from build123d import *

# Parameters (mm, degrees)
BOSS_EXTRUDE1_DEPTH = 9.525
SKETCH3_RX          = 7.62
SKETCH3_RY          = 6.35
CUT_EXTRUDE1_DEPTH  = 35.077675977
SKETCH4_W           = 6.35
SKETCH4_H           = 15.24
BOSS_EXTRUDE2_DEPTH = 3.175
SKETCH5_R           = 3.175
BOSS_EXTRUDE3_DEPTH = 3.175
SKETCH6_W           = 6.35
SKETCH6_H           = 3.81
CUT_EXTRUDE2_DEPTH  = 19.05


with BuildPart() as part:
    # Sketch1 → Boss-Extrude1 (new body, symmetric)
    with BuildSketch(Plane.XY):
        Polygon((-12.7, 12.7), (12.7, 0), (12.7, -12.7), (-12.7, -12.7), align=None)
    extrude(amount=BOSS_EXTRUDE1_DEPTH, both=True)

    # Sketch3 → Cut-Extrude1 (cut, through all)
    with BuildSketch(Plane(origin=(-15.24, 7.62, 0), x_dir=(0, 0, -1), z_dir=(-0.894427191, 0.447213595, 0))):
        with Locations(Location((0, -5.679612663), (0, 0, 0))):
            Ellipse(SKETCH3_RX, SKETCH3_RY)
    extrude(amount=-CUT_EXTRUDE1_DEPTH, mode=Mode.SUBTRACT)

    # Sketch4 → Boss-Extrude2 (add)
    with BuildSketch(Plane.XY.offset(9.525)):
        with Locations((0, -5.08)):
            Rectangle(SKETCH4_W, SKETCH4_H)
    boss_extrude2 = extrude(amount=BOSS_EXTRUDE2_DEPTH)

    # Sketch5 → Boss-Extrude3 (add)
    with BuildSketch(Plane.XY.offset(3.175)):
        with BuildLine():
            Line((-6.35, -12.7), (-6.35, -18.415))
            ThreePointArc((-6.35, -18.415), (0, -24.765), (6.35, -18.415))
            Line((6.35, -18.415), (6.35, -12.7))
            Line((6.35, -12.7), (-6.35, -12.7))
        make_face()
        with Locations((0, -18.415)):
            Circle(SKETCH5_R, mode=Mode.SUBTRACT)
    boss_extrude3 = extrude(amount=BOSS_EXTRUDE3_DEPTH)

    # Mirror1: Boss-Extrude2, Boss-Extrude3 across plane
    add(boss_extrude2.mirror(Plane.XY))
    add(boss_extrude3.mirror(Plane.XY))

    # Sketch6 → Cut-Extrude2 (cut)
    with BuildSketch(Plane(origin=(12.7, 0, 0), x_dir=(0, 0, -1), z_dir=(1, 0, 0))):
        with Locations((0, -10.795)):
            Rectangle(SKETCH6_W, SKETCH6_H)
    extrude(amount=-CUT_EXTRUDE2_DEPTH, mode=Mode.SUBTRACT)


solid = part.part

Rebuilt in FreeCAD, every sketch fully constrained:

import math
import FreeCAD as App
import Part
import Sketcher
from FreeCAD import Vector
Q = App.Units.Quantity


def add_polygon(sketch, points):
    """Adds a closed chain of lines whose ends are joined by coincident constraints."""
    first, n = sketch.GeometryCount, len(points)
    for a, b in zip(points, points[1:] + points[:1]):
        sketch.addGeometry(Part.LineSegment(App.Vector(*a, 0), App.Vector(*b, 0)), False)
    for i in range(n):
        sketch.addConstraint(Sketcher.Constraint("Coincident", first + i, 2, first + (i + 1) % n, 1))

doc = App.newDocument("Part")
body = doc.addObject("PartDesign::Body", "Body")

# Sketch on XY plane
sketch1 = body.newObject("Sketcher::SketchObject", "Sketch")
sketch1.AttachmentSupport = (doc.getObject("XY_Plane"), [""])
sketch1.MapMode = "FlatFace"
add_polygon(sketch1, [(12.7, 0), (-12.7, 12.7), (-12.7, -12.7), (12.7, -12.7)])  # lines 0-3
sketch1.addConstraint(Sketcher.Constraint("Vertical", 1))
sketch1.addConstraint(Sketcher.Constraint("Horizontal", 2))
sketch1.addConstraint(Sketcher.Constraint("Vertical", 3))
sketch1.addConstraint(Sketcher.Constraint("Symmetric", 0, 2, 2, 2, -1, 1))
sketch1.addConstraint(Sketcher.Constraint("PointOnObject", 3, 2, -1))
sketch1.addConstraint(Sketcher.Constraint("Equal", 2, 1))
sketch1.addConstraint(Sketcher.Constraint("DistanceX", 2, 1, 2, 2, Q("1 in")))
pad1 = body.newObject("PartDesign::Pad", "Pad")
pad1.Profile = sketch1
pad1.Length = Q("0.75 in")
pad1.Midplane = True

# Sketch on an angled plane
sketch2 = body.newObject("Sketcher::SketchObject", "Sketch001")
sketch2.Placement = App.Placement(Vector(-15.24, 7.62, 0), App.Rotation(Vector(0, 0, -1), Vector(-0.447213595, -0.894427191, 0), Vector(-0.894427191, 0.447213595, 0), "ZXY"))
sketch2.addGeometry(Part.Ellipse(Vector(7.62, -5.679613, 0), Vector(0, 0.670387, 0), Vector(0, -5.679613, 0)), False)
sketch2.addConstraint(Sketcher.Constraint("Block", 0))
pocket1 = body.newObject("PartDesign::Pocket", "Pocket")
pocket1.Profile = sketch2
pocket1.Type = "ThroughAll"

# Sketch on XY plane
sketch3 = body.newObject("Sketcher::SketchObject", "Sketch002")
sketch3.AttachmentSupport = (doc.getObject("XY_Plane"), [""])
sketch3.MapMode = "FlatFace"
sketch3.AttachmentOffset = App.Placement(Vector(0, 0, 0.375 * 25.4), App.Rotation())
add_polygon(sketch3, [(-3.175, 2.54), (-3.175, -12.7), (3.175, -12.7), (3.175, 2.54)])  # lines 0-3
sketch3.addConstraint(Sketcher.Constraint("Vertical", 0))
sketch3.addConstraint(Sketcher.Constraint("Horizontal", 1))
sketch3.addConstraint(Sketcher.Constraint("Vertical", 2))
sketch3.addConstraint(Sketcher.Constraint("Horizontal", 3))
sketch3.addConstraint(Sketcher.Constraint("DistanceY", 0, 2, 0, 1, Q("0.6 in")))
sketch3.addConstraint(Sketcher.Constraint("DistanceX", 1, 1, 1, 2, Q("0.25 in")))
sketch3.addConstraint(Sketcher.Constraint("DistanceY", 0, 2, -1, 1, Q("0.5 in")))
sketch3.addConstraint(Sketcher.Constraint("DistanceX", 0, 2, -1, 1, Q("0.125 in")))
pad2 = body.newObject("PartDesign::Pad", "Pad001")
pad2.Profile = sketch3
pad2.Length = Q("0.125 in")

# Sketch on XY plane
sketch4 = body.newObject("Sketcher::SketchObject", "Sketch003")
sketch4.AttachmentSupport = (doc.getObject("XY_Plane"), [""])
sketch4.MapMode = "FlatFace"
sketch4.AttachmentOffset = App.Placement(Vector(0, 0, 0.125 * 25.4), App.Rotation())
sketch4.addGeometry(Part.LineSegment(Vector(-6.35, -12.7, 0), Vector(-6.35, -18.415, 0)), False)
sketch4.addGeometry(Part.ArcOfCircle(Part.Circle(Vector(0, -18.415, 0), Vector(0, 0, 1), 6.35), math.radians(180), math.radians(360)), False)
sketch4.addGeometry(Part.LineSegment(Vector(6.35, -18.415, 0), Vector(6.35, -12.7, 0)), False)
sketch4.addGeometry(Part.LineSegment(Vector(6.35, -12.7, 0), Vector(-6.35, -12.7, 0)), False)
sketch4.addGeometry(Part.Circle(Vector(0, -18.415, 0), Vector(0, 0, 1), 3.175), False)
sketch4.addConstraint(Sketcher.Constraint("Tangent", 0, 2, 1, 1))
sketch4.addConstraint(Sketcher.Constraint("Tangent", 1, 2, 2, 1))
sketch4.addConstraint(Sketcher.Constraint("Coincident", 2, 2, 3, 1))
sketch4.addConstraint(Sketcher.Constraint("Coincident", 3, 2, 0, 1))
sketch4.addConstraint(Sketcher.Constraint("Vertical", 0))
sketch4.addConstraint(Sketcher.Constraint("Vertical", 2))
sketch4.addConstraint(Sketcher.Constraint("Horizontal", 3))
sketch4.addConstraint(Sketcher.Constraint("Coincident", 4, 3, 1, 3))
sketch4.addConstraint(Sketcher.Constraint("PointOnObject", 1, 3, -2))
sketch4.addConstraint(Sketcher.Constraint("Diameter", 4, Q("0.25 in")))
sketch4.addConstraint(Sketcher.Constraint("Radius", 1, Q("0.25 in")))
sketch4.addConstraint(Sketcher.Constraint("DistanceY", 2, 2, -1, 1, Q("0.5 in")))
sketch4.addConstraint(Sketcher.Constraint("DistanceY", 0, 2, 0, 1, Q("0.225 in")))
pad3 = body.newObject("PartDesign::Pad", "Pad002")
pad3.Profile = sketch4
pad3.Length = Q("0.125 in")
doc.recompute()

mirrored = body.newObject("PartDesign::Mirrored", "Mirrored")
mirrored.Originals = [pad2, pad3]
mirrored.MirrorPlane = (doc.getObject("XY_Plane"), [""])
body.Tip = mirrored

# Sketch on YZ plane
sketch5 = body.newObject("Sketcher::SketchObject", "Sketch004")
sketch5.AttachmentSupport = (doc.getObject("YZ_Plane"), [""])
sketch5.MapMode = "FlatFace"
sketch5.AttachmentOffset = App.Placement(Vector(0, 0, 0.5 * 25.4), App.Rotation())
add_polygon(sketch5, [(-8.89, 3.175), (-12.7, 3.175), (-12.7, -3.175), (-8.89, -3.175)])  # lines 0-3
sketch5.addConstraint(Sketcher.Constraint("Horizontal", 0))
sketch5.addConstraint(Sketcher.Constraint("Vertical", 1))
sketch5.addConstraint(Sketcher.Constraint("Horizontal", 2))
sketch5.addConstraint(Sketcher.Constraint("Vertical", 3))
sketch5.addConstraint(Sketcher.Constraint("DistanceX", 0, 2, 0, 1, Q("0.15 in")))
sketch5.addConstraint(Sketcher.Constraint("DistanceY", 1, 2, 1, 1, Q("0.25 in")))
sketch5.addConstraint(Sketcher.Constraint("DistanceX", 0, 2, -1, 1, Q("0.5 in")))
sketch5.addConstraint(Sketcher.Constraint("DistanceY", -1, 1, 0, 2, Q("0.125 in")))
pocket2 = body.newObject("PartDesign::Pocket", "Pocket001")
pocket2.Profile = sketch5
pocket2.Length = Q("0.75 in")

doc.recompute()
